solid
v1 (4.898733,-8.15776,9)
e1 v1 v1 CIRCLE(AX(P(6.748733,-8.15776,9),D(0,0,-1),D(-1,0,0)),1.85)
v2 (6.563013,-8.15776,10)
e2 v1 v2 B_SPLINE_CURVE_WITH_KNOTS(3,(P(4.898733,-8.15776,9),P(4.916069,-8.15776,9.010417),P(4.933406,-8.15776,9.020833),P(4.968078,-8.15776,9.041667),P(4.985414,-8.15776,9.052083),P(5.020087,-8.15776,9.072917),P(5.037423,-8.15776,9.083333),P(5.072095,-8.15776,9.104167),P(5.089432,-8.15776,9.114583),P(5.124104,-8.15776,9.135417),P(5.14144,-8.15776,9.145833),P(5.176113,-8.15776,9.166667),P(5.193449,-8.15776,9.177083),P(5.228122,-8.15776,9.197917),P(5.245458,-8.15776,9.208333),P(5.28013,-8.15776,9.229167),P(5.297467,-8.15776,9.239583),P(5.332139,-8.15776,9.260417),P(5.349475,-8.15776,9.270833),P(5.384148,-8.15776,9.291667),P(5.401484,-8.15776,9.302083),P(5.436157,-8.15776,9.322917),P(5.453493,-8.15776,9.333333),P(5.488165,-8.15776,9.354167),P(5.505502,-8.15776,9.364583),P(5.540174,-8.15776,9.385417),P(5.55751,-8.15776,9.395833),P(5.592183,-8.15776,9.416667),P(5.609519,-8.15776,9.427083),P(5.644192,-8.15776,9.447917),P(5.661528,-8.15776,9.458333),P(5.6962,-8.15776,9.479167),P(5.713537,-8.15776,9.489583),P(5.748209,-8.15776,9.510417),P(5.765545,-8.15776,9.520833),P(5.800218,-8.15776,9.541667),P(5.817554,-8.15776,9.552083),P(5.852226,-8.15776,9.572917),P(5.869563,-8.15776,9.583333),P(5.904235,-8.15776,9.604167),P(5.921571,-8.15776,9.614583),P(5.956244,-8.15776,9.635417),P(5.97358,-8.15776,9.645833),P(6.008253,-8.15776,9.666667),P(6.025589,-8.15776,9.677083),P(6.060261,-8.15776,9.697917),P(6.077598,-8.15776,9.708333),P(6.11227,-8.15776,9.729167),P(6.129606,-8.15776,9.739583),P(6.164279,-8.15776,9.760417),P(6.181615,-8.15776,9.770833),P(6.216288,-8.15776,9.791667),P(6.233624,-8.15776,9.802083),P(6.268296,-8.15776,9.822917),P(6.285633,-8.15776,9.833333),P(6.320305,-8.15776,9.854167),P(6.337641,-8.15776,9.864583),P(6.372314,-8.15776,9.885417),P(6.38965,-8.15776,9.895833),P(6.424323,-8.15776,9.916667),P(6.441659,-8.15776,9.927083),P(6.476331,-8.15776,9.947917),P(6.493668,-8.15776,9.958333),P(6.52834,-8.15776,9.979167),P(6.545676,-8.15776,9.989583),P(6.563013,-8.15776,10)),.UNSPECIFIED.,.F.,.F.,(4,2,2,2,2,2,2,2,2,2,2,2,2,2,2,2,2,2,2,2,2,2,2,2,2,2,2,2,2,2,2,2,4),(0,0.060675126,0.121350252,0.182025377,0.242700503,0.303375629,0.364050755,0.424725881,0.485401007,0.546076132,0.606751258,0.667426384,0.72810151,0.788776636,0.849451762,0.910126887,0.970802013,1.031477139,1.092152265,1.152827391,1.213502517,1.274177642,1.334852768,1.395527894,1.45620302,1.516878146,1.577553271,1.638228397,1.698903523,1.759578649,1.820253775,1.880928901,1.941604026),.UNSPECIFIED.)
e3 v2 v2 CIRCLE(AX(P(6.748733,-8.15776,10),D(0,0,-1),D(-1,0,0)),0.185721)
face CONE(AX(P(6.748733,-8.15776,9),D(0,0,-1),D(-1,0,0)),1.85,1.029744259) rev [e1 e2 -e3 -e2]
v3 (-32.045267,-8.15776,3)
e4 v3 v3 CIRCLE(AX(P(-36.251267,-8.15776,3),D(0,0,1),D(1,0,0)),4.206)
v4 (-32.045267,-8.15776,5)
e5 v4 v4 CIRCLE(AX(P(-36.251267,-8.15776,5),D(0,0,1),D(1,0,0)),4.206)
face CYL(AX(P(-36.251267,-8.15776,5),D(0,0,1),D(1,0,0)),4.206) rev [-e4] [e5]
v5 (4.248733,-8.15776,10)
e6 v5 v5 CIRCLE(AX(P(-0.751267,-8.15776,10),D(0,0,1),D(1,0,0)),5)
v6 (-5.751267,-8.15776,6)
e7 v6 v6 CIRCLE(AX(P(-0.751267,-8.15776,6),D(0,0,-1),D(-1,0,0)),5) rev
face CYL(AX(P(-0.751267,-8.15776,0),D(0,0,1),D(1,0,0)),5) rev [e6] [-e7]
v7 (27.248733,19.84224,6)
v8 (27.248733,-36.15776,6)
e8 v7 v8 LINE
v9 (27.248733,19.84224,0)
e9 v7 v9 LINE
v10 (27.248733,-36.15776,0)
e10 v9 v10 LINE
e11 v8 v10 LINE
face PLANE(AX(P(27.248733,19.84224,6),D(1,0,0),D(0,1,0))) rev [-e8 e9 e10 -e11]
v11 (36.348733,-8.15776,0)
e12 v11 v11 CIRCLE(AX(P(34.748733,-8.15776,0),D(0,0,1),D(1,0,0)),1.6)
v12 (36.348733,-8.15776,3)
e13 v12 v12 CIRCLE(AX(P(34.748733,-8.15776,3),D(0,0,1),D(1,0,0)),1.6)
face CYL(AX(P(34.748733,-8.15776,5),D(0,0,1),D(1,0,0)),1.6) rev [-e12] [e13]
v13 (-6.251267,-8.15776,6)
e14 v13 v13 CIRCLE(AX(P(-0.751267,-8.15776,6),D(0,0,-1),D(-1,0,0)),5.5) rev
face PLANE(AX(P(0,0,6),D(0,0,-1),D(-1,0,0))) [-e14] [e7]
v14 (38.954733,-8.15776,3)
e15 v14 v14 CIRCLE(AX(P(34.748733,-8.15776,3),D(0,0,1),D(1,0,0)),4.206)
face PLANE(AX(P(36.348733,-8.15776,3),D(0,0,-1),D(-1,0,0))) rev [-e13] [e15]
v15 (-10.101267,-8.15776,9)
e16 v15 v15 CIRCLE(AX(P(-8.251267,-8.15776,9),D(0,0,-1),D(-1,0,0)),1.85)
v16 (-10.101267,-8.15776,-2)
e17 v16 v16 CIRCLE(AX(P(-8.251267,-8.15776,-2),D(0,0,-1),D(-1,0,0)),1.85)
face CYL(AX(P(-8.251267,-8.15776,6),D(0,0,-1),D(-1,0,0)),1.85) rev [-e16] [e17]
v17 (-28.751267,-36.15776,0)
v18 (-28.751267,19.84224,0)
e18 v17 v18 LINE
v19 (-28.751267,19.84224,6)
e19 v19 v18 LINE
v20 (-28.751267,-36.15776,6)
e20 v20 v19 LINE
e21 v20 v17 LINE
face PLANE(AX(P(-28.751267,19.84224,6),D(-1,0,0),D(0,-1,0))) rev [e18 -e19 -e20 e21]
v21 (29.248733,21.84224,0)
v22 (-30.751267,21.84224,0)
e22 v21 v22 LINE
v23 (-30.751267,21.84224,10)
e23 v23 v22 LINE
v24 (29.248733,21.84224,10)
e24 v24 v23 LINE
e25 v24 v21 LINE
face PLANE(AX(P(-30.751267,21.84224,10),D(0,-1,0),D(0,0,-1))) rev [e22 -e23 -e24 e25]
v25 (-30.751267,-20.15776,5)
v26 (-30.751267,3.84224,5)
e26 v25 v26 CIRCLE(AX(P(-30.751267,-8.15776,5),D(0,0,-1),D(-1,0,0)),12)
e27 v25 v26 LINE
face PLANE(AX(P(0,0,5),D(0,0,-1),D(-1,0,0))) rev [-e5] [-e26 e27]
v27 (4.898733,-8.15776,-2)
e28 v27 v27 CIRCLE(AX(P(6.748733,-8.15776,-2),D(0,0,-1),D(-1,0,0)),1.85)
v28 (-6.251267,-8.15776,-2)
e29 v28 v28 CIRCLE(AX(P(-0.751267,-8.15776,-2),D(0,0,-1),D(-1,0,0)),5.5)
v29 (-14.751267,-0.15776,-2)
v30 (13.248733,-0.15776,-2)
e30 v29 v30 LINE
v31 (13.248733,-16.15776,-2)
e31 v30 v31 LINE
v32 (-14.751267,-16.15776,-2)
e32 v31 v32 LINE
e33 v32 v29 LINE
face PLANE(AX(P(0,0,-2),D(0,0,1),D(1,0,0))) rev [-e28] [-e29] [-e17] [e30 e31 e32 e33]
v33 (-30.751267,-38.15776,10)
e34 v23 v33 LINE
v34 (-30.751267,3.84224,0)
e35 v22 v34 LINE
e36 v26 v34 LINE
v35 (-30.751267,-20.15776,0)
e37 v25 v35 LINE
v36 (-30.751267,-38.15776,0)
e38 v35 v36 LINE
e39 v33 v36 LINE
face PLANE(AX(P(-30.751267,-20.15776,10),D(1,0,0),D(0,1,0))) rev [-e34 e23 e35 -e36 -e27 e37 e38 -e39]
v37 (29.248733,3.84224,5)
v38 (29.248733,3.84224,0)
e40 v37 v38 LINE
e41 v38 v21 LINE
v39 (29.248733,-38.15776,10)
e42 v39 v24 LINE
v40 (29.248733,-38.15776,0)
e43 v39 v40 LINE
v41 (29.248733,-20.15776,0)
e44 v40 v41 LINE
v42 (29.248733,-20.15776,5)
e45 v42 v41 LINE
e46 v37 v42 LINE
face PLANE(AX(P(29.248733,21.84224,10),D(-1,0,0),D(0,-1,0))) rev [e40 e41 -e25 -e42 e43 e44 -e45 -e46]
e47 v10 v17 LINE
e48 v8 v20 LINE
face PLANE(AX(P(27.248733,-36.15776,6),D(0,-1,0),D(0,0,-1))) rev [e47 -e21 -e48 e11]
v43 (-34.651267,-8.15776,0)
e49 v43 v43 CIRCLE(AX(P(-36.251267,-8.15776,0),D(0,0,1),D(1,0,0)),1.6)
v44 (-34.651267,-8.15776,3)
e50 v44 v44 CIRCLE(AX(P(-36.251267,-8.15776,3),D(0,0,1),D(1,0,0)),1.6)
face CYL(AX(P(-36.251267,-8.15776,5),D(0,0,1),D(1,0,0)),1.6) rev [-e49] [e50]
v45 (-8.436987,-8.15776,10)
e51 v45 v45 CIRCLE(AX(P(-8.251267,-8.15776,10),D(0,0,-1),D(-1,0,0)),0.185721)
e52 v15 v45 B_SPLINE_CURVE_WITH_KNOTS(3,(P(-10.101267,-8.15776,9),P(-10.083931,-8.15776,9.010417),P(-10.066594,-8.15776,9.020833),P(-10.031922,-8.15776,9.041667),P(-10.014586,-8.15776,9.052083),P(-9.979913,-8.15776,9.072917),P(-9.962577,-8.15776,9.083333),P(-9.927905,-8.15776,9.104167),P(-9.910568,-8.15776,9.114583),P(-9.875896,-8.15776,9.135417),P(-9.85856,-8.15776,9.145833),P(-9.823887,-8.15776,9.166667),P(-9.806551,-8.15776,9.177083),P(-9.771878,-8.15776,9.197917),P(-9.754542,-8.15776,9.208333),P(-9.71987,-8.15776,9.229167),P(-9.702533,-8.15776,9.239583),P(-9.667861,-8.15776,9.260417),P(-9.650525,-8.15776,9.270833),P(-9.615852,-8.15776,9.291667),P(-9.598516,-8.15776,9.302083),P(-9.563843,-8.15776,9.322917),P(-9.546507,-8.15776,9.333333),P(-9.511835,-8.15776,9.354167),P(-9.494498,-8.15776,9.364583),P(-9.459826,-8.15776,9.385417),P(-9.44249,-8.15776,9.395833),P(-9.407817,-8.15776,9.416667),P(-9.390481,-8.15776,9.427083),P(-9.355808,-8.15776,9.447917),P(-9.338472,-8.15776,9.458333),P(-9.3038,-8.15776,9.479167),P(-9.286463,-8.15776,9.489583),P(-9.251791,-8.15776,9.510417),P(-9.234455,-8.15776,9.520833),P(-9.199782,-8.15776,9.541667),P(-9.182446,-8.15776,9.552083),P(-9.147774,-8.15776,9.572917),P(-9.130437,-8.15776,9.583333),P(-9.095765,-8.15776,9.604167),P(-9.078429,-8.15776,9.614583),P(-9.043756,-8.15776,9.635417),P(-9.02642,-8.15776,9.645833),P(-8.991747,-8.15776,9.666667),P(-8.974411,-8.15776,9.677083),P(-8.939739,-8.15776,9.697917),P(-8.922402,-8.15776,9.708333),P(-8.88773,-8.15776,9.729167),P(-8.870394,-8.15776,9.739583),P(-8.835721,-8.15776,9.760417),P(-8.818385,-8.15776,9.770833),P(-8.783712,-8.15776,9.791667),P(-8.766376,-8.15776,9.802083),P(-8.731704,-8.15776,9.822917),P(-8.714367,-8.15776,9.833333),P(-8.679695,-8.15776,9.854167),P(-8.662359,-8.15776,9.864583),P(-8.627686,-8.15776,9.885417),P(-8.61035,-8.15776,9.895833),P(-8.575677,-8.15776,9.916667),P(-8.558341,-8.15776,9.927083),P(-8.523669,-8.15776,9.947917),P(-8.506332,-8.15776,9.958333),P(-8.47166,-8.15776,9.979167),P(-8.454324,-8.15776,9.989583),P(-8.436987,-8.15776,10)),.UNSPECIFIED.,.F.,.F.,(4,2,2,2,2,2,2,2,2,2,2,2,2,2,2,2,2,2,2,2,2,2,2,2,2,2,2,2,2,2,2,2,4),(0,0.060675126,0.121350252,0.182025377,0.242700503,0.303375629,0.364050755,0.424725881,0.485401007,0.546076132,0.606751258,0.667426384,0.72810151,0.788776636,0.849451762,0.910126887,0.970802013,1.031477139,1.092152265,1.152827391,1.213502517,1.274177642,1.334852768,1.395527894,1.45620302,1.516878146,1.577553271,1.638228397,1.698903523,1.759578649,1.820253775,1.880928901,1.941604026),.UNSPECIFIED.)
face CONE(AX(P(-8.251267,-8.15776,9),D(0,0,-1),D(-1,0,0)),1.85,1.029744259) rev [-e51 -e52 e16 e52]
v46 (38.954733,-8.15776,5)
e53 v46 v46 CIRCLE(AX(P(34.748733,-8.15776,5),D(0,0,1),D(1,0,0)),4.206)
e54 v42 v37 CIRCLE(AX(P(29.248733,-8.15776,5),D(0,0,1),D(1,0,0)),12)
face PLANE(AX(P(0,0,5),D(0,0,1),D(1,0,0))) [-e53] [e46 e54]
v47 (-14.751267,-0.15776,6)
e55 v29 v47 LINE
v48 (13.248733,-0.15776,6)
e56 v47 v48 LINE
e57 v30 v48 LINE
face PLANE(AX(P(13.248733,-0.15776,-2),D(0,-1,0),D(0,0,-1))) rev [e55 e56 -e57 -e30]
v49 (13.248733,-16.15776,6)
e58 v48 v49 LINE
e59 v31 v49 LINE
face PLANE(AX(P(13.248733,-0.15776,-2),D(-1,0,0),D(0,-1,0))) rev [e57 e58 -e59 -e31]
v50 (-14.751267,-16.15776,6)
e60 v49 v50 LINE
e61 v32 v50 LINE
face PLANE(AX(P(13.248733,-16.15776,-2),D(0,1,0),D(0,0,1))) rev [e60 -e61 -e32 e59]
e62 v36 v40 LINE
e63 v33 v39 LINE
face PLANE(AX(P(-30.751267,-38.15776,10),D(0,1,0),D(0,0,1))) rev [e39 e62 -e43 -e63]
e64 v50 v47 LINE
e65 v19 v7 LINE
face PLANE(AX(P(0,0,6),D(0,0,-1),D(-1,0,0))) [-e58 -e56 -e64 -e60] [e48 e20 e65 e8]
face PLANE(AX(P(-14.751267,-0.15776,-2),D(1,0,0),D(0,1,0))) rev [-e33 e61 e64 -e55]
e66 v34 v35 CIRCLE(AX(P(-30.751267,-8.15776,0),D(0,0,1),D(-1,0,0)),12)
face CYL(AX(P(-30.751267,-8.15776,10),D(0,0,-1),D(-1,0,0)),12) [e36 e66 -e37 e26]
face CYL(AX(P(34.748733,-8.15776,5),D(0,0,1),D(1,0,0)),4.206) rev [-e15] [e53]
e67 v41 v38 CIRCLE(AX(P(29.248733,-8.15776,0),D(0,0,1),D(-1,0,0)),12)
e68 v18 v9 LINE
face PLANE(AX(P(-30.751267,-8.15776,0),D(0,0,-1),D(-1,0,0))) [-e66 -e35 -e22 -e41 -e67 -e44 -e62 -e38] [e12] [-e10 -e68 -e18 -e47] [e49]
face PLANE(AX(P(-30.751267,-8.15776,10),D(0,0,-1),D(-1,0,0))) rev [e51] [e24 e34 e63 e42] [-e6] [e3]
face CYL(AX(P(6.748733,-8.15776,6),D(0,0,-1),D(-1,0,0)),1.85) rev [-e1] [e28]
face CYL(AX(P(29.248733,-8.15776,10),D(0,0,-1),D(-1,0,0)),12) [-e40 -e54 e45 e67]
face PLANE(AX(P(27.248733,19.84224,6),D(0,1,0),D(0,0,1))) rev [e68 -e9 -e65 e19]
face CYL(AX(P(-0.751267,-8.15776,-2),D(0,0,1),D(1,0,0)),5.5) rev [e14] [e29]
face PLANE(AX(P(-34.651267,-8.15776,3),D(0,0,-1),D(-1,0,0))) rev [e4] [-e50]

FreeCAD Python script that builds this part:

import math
import FreeCAD as App
import Part
import Sketcher
from FreeCAD import Vector


def add_polygon(sketch, points):
    """Adds a closed chain of lines whose ends are joined by coincident constraints."""
    first, n = sketch.GeometryCount, len(points)
    for a, b in zip(points, points[1:] + points[:1]):
        sketch.addGeometry(Part.LineSegment(App.Vector(*a, 0), App.Vector(*b, 0)), False)
    for i in range(n):
        sketch.addConstraint(Sketcher.Constraint("Coincident", first + i, 2, first + (i + 1) % n, 1))

doc = App.newDocument("Part")
params = doc.addObject("Spreadsheet::Sheet", "Params")
for row, (alias, value) in enumerate([
    ("sketch1_radius", "12 mm"),
    ("sketch1_width", "60 mm"),
    ("sketch1_height", "18 mm"),
    ("pad1_length", "10 mm"),
    ("sketch2_diameter", "10 mm"),
    ("sketch3_width", "56 mm"),
    ("pocket2_length", "6 mm"),
    ("sketch4_diameter", "3.7 mm"),
    ("hole_diameter", "3.7 mm"),
    ("hole_depth", "3 mm"),
    ("pocket3_length", "5 mm"),
    ("sketch6_diameter", "3.2 mm"),
    ("hole2_diameter", "3.2 mm"),
    ("hole2_cbore_diameter", "8.412 mm"),
    ("hole2_cbore_depth", "2 mm"),
    ("sketch7_diameter", "11 mm"),
    ("sketch7_diameter2", "3.7 mm"),
    ("sketch7_width", "28 mm"),
    ("sketch7_height", "16 mm"),
    ("pad2_length", "8 mm"),
], start=1):
    params.set(f"A{row}", alias)
    params.set(f"B{row}", "=" + value)
    params.setAlias(f"B{row}", alias)

body = doc.addObject("PartDesign::Body", "Body")

# Sketch on XY plane
sketch1 = doc.addObject("Sketcher::SketchObject", "Sketch")
body.addObject(sketch1)
sketch1.AttachmentSupport = (doc.XY_Plane, [""])
sketch1.MapMode = "FlatFace"
sketch1.addGeometry(Part.LineSegment(Vector(29, 22, 0), Vector(-31, 22, 0)), False)
sketch1.addGeometry(Part.LineSegment(Vector(-31, 22, 0), Vector(-31, 4, 0)), False)
sketch1.addGeometry(Part.ArcOfCircle(Part.Circle(Vector(-31, -8, 0), Vector(0, 0, 1), 12), math.radians(90), math.radians(270)), False)
sketch1.addGeometry(Part.LineSegment(Vector(-31, -20, 0), Vector(-31, -38, 0)), False)
sketch1.addGeometry(Part.LineSegment(Vector(-31, -38, 0), Vector(29, -38, 0)), False)
sketch1.addGeometry(Part.LineSegment(Vector(29, -38, 0), Vector(29, -20, 0)), False)
sketch1.addGeometry(Part.ArcOfCircle(Part.Circle(Vector(29, -8, 0), Vector(0, 0, 1), 12), math.radians(-90), math.radians(90)), False)
sketch1.addGeometry(Part.LineSegment(Vector(29, 4, 0), Vector(29, 22, 0)), False)
sketch1.addConstraint(Sketcher.Constraint("Coincident", 0, 2, 1, 1))
sketch1.addConstraint(Sketcher.Constraint("Coincident", 1, 2, 2, 1))
sketch1.addConstraint(Sketcher.Constraint("Coincident", 2, 2, 3, 1))
sketch1.addConstraint(Sketcher.Constraint("Coincident", 3, 2, 4, 1))
sketch1.addConstraint(Sketcher.Constraint("Coincident", 4, 2, 5, 1))
sketch1.addConstraint(Sketcher.Constraint("Coincident", 5, 2, 6, 1))
sketch1.addConstraint(Sketcher.Constraint("Coincident", 6, 2, 7, 1))
sketch1.addConstraint(Sketcher.Constraint("Coincident", 7, 2, 0, 1))
sketch1.addConstraint(Sketcher.Constraint("Horizontal", 0))
sketch1.addConstraint(Sketcher.Constraint("Vertical", 1))
sketch1.addConstraint(Sketcher.Constraint("Vertical", 3))
sketch1.addConstraint(Sketcher.Constraint("Horizontal", 4))
sketch1.addConstraint(Sketcher.Constraint("Vertical", 5))
sketch1.addConstraint(Sketcher.Constraint("Vertical", 7))
sketch1.addConstraint(Sketcher.Constraint("Equal", 2, 6))
sketch1.addConstraint(Sketcher.Constraint("Horizontal", 2, 3, 6, 3))
sketch1.addConstraint(Sketcher.Constraint("Vertical", 2, 3, 0, 2))
sketch1.addConstraint(Sketcher.Constraint("Vertical", 1, 2, 2, 2))
sketch1.addConstraint(Sketcher.Constraint("Vertical", 6, 3, 4, 2))
sketch1.addConstraint(Sketcher.Constraint("Vertical", 5, 2, 6, 2))
sketch1.addConstraint(Sketcher.Constraint("Equal", 1, 3))
sketch1.addConstraint(Sketcher.Constraint("Radius", 2, 12.0))
sketch1.addConstraint(Sketcher.Constraint("DistanceX", 0, 2, 0, 1, 60.0))
sketch1.addConstraint(Sketcher.Constraint("DistanceY", 1, 2, 1, 1, 18.0))
sketch1.addConstraint(Sketcher.Constraint("DistanceY", 2, 3, -1, 1, 8.15776))
sketch1.addConstraint(Sketcher.Constraint("DistanceX", 2, 3, -1, 1, 30.751267))
sketch1.setExpression("Constraints[21]", "Params.sketch1_radius")
sketch1.setExpression("Constraints[22]", "Params.sketch1_width")
sketch1.setExpression("Constraints[23]", "Params.sketch1_height")
pad1 = doc.addObject("PartDesign::Pad", "Pad")
body.addObject(pad1)
pad1.Profile = sketch1
pad1.setExpression("Length", "Params.pad1_length")

# Sketch on XY plane
sketch2 = doc.addObject("Sketcher::SketchObject", "Sketch001")
body.addObject(sketch2)
sketch2.AttachmentSupport = (doc.XY_Plane, [""])
sketch2.MapMode = "FlatFace"
sketch2.AttachmentOffset = App.Placement(Vector(0, 0, 10), App.Rotation())
sketch2.addGeometry(Part.Circle(Vector(-1, -8, 0), Vector(0, 0, 1), 5), False)
sketch2.addConstraint(Sketcher.Constraint("Diameter", 0, 10.0))
sketch2.addConstraint(Sketcher.Constraint("DistanceY", 0, 3, -1, 1, 8.15776))
sketch2.addConstraint(Sketcher.Constraint("DistanceX", 0, 3, -1, 1, 0.751267))
sketch2.setExpression("Constraints[0]", "Params.sketch2_diameter")
pocket1 = doc.addObject("PartDesign::Pocket", "Pocket")
body.addObject(pocket1)
pocket1.Profile = sketch2
pocket1.Type = "ThroughAll"

# Sketch on XY plane
sketch3 = doc.addObject("Sketcher::SketchObject", "Sketch002")
body.addObject(sketch3)
sketch3.AttachmentSupport = (doc.XY_Plane, [""])
sketch3.MapMode = "FlatFace"
add_polygon(sketch3, [(-29, 20), (27, 20), (27, -36), (-29, -36)])  # lines 0-3
sketch3.addConstraint(Sketcher.Constraint("Horizontal", 0))
sketch3.addConstraint(Sketcher.Constraint("Vertical", 1))
sketch3.addConstraint(Sketcher.Constraint("Horizontal", 2))
sketch3.addConstraint(Sketcher.Constraint("Vertical", 3))
sketch3.addConstraint(Sketcher.Constraint("Equal", 2, 1))
sketch3.addConstraint(Sketcher.Constraint("DistanceX", 0, 1, 0, 2, 56.0))
sketch3.addConstraint(Sketcher.Constraint("DistanceY", -1, 1, 0, 2, 19.84224))
sketch3.addConstraint(Sketcher.Constraint("DistanceX", -1, 1, 0, 2, 27.248733))
sketch3.setExpression("Constraints[9]", "Params.sketch3_width")
pocket2 = doc.addObject("PartDesign::Pocket", "Pocket001")
body.addObject(pocket2)
pocket2.Profile = sketch3
pocket2.setExpression("Length", "Params.pocket2_length")
pocket2.Reversed = True

# Sketch on XY plane
sketch4 = doc.addObject("Sketcher::SketchObject", "Sketch003")
body.addObject(sketch4)
sketch4.AttachmentSupport = (doc.XY_Plane, [""])
sketch4.MapMode = "FlatFace"
sketch4.AttachmentOffset = App.Placement(Vector(0, 0, 6), App.Rotation())
sketch4.addGeometry(Part.Circle(Vector(-8.3, -8.2, 0), Vector(0, 0, 1), 1.9), False)
sketch4.addGeometry(Part.Circle(Vector(6.7, -8.2, 0), Vector(0, 0, 1), 1.9), False)
sketch4.addConstraint(Sketcher.Constraint("Equal", 0, 1))
sketch4.addConstraint(Sketcher.Constraint("Horizontal", 0, 3, 1, 3))
sketch4.addConstraint(Sketcher.Constraint("Diameter", 0, 3.7))
sketch4.addConstraint(Sketcher.Constraint("DistanceX", 0, 3, 1, 3, 15.0))
sketch4.addConstraint(Sketcher.Constraint("DistanceY", 0, 3, -1, 1, 8.15776))
sketch4.addConstraint(Sketcher.Constraint("DistanceX", 0, 3, -1, 1, 8.251267))
sketch4.setExpression("Constraints[2]", "Params.sketch4_diameter")
doc.recompute()
hole = doc.addObject("PartDesign::Hole", "Hole")
body.addObject(hole)
hole.Profile = sketch4
hole.ThreadType = "None"
hole.setExpression("Diameter", "Params.hole_diameter")
hole.DepthType = "Dimension"
hole.setExpression("Depth", "Params.hole_depth")
hole.DrillPoint = "Angled"
hole.DrillPointAngle = 118
hole.Reversed = True

# Sketch on XY plane
sketch5 = doc.addObject("Sketcher::SketchObject", "Sketch004")
body.addObject(sketch5)
sketch5.AttachmentSupport = (doc.XY_Plane, [""])
sketch5.MapMode = "FlatFace"
sketch5.AttachmentOffset = App.Placement(Vector(0, 0, 10), App.Rotation())
add_polygon(sketch5, [(-31, 4), (-47, 4), (-47, -24), (-31, -24)])  # lines 0-3
add_polygon(sketch5, [(29, 4), (29, -25), (62, -25), (62, 4)])  # lines 4-7
sketch5.addConstraint(Sketcher.Constraint("Horizontal", 0))
sketch5.addConstraint(Sketcher.Constraint("Vertical", 1))
sketch5.addConstraint(Sketcher.Constraint("Horizontal", 2))
sketch5.addConstraint(Sketcher.Constraint("Vertical", 3))
sketch5.addConstraint(Sketcher.Constraint("Vertical", 4))
sketch5.addConstraint(Sketcher.Constraint("Horizontal", 5))
sketch5.addConstraint(Sketcher.Constraint("Vertical", 6))
sketch5.addConstraint(Sketcher.Constraint("Horizontal", 7))
sketch5.addConstraint(Sketcher.Constraint("Horizontal", 3, 2, 6, 2))
sketch5.addConstraint(Sketcher.Constraint("DistanceX", 2, 2, 4, 2, 60.0))
sketch5.addConstraint(Sketcher.Constraint("DistanceX", 0, 2, 0, 1, 16.296941))
sketch5.addConstraint(Sketcher.Constraint("DistanceY", 1, 2, 1, 1, 27.646829))
sketch5.addConstraint(Sketcher.Constraint("DistanceY", 4, 2, 4, 1, 29.109982))
sketch5.addConstraint(Sketcher.Constraint("DistanceX", 5, 1, 5, 2, 32.384434))
sketch5.addConstraint(Sketcher.Constraint("DistanceY", -1, 1, 0, 2, 3.84224))
sketch5.addConstraint(Sketcher.Constraint("DistanceX", 0, 2, -1, 1, 47.048208))
pocket3 = doc.addObject("PartDesign::Pocket", "Pocket002")
body.addObject(pocket3)
pocket3.Profile = sketch5
pocket3.setExpression("Length", "Params.pocket3_length")

# Sketch on XY plane
sketch6 = doc.addObject("Sketcher::SketchObject", "Sketch005")
body.addObject(sketch6)
sketch6.AttachmentSupport = (doc.XY_Plane, [""])
sketch6.MapMode = "FlatFace"
sketch6.AttachmentOffset = App.Placement(Vector(0, 0, 5), App.Rotation())
sketch6.addGeometry(Part.Circle(Vector(34.7, -8.2, 0), Vector(0, 0, 1), 1.6), False)
sketch6.addGeometry(Part.Circle(Vector(-36.3, -8.2, 0), Vector(0, 0, 1), 1.6), False)
sketch6.addConstraint(Sketcher.Constraint("Equal", 0, 1))
sketch6.addConstraint(Sketcher.Constraint("Horizontal", 0, 3, 1, 3))
sketch6.addConstraint(Sketcher.Constraint("Diameter", 0, 3.2))
sketch6.addConstraint(Sketcher.Constraint("DistanceX", 1, 3, 0, 3, 71.0))
sketch6.addConstraint(Sketcher.Constraint("DistanceY", 0, 3, -1, 1, 8.15776))
sketch6.addConstraint(Sketcher.Constraint("DistanceX", -1, 1, 0, 3, 34.748733))
sketch6.setExpression("Constraints[2]", "Params.sketch6_diameter")
doc.recompute()
hole2 = doc.addObject("PartDesign::Hole", "Hole001")
body.addObject(hole2)
hole2.Profile = sketch6
hole2.ThreadType = "None"
hole2.setExpression("Diameter", "Params.hole2_diameter")
hole2.DepthType = "ThroughAll"
hole2.HoleCutType = "Counterbore"
hole2.setExpression("HoleCutDiameter", "Params.hole2_cbore_diameter")
hole2.setExpression("HoleCutDepth", "Params.hole2_cbore_depth")

# Sketch on XY plane
sketch7 = doc.addObject("Sketcher::SketchObject", "Sketch006")
body.addObject(sketch7)
sketch7.AttachmentSupport = (doc.XY_Plane, [""])
sketch7.MapMode = "FlatFace"
sketch7.AttachmentOffset = App.Placement(Vector(0, 0, 6), App.Rotation())
add_polygon(sketch7, [(13.2, -0.2), (13.2, -16.2), (-14.8, -16.2), (-14.8, -0.2)])  # lines 0-3
sketch7.addGeometry(Part.Circle(Vector(6.7, -8.2, 0), Vector(0, 0, 1), 1.9), False)  # 4
sketch7.addGeometry(Part.Circle(Vector(-8.3, -8.2, 0), Vector(0, 0, 1), 1.9), False)  # 5
sketch7.addGeometry(Part.Circle(Vector(-0.8, -8.2, 0), Vector(0, 0, 1), 5.5), False)  # 6
sketch7.addConstraint(Sketcher.Constraint("Vertical", 0))
sketch7.addConstraint(Sketcher.Constraint("Horizontal", 1))
sketch7.addConstraint(Sketcher.Constraint("Vertical", 2))
sketch7.addConstraint(Sketcher.Constraint("Horizontal", 3))
sketch7.addConstraint(Sketcher.Constraint("Equal", 4, 5))
sketch7.addConstraint(Sketcher.Constraint("Horizontal", 4, 3, 5, 3))
sketch7.addConstraint(Sketcher.Constraint("Horizontal", 5, 3, 6, 3))
sketch7.addConstraint(Sketcher.Constraint("Diameter", 6, 11.0))
sketch7.addConstraint(Sketcher.Constraint("Diameter", 4, 3.7))
sketch7.addConstraint(Sketcher.Constraint("DistanceX", 1, 2, 1, 1, 28.0))
sketch7.addConstraint(Sketcher.Constraint("DistanceY", 0, 2, 0, 1, 16.0))
sketch7.addConstraint(Sketcher.Constraint("DistanceX", 5, 3, 4, 3, 15.0))
sketch7.addConstraint(Sketcher.Constraint("DistanceY", 0, 2, 4, 3, 8.0))
sketch7.addConstraint(Sketcher.Constraint("DistanceX", 6, 3, 0, 2, 14.0))
sketch7.addConstraint(Sketcher.Constraint("DistanceX", 6, 3, 4, 3, 7.5))
sketch7.addConstraint(Sketcher.Constraint("DistanceY", 4, 3, -1, 1, 8.15776))
sketch7.addConstraint(Sketcher.Constraint("DistanceX", -1, 1, 4, 3, 6.748733))
sketch7.setExpression("Constraints[11]", "Params.sketch7_diameter")
sketch7.setExpression("Constraints[12]", "Params.sketch7_diameter2")
sketch7.setExpression("Constraints[13]", "Params.sketch7_width")
sketch7.setExpression("Constraints[14]", "Params.sketch7_height")
pad2 = doc.addObject("PartDesign::Pad", "Pad001")
body.addObject(pad2)
pad2.Profile = sketch7
pad2.setExpression("Length", "Params.pad2_length")
pad2.Reversed = True

doc.recompute()
